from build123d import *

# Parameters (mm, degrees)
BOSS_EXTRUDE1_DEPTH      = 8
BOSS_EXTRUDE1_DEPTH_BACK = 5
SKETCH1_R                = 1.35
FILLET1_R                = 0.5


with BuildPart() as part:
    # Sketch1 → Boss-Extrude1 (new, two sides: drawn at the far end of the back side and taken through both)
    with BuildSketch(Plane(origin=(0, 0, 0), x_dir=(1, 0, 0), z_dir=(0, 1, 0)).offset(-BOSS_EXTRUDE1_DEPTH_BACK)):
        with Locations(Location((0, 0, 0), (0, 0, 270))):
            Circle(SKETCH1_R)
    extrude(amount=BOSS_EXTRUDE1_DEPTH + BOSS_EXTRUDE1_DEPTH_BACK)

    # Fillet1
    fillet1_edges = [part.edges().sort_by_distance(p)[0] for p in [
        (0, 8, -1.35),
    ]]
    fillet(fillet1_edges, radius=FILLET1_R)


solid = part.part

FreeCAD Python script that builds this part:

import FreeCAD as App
import Part
import Sketcher
from FreeCAD import Vector
Q = App.Units.Quantity


def edges_at(feature, points):
    """Names of the edges that pass closest to the given points."""
    edges = feature.Shape.Edges
    near = lambda p: min(range(len(edges)), key=lambda i: edges[i].distToShape(Part.Vertex(*p))[0])
    return sorted({f"Edge{near(p) + 1}" for p in points})

doc = App.newDocument("Part")
body = doc.addObject("PartDesign::Body", "Body")

# Sketch on XZ plane
sketch1 = body.newObject("Sketcher::SketchObject", "Sketch")
sketch1.AttachmentSupport = (doc.getObject("XZ_Plane"), [""])
sketch1.MapMode = "FlatFace"
sketch1.addGeometry(Part.Circle(Vector(0, 0, 0), Vector(0, 0, 1), 1.4), False)
sketch1.addConstraint([
    Sketcher.Constraint("Coincident", 0, 3, -1, 1),
    Sketcher.Constraint("Diameter", 0, Q("2.7 mm")),
])
pad1 = body.newObject("PartDesign::Pad", "Pad")
pad1.Profile = sketch1
pad1.Type = "TwoLengths"
pad1.Length = 8
pad1.Length2 = 5
pad1.Reversed = True
doc.recompute()

fillet = body.newObject("PartDesign::Fillet", "Fillet")
fillet.Base = (pad1, edges_at(pad1, [(0, 8, -1.35)]))
fillet.Radius = 0.5

doc.recompute()
